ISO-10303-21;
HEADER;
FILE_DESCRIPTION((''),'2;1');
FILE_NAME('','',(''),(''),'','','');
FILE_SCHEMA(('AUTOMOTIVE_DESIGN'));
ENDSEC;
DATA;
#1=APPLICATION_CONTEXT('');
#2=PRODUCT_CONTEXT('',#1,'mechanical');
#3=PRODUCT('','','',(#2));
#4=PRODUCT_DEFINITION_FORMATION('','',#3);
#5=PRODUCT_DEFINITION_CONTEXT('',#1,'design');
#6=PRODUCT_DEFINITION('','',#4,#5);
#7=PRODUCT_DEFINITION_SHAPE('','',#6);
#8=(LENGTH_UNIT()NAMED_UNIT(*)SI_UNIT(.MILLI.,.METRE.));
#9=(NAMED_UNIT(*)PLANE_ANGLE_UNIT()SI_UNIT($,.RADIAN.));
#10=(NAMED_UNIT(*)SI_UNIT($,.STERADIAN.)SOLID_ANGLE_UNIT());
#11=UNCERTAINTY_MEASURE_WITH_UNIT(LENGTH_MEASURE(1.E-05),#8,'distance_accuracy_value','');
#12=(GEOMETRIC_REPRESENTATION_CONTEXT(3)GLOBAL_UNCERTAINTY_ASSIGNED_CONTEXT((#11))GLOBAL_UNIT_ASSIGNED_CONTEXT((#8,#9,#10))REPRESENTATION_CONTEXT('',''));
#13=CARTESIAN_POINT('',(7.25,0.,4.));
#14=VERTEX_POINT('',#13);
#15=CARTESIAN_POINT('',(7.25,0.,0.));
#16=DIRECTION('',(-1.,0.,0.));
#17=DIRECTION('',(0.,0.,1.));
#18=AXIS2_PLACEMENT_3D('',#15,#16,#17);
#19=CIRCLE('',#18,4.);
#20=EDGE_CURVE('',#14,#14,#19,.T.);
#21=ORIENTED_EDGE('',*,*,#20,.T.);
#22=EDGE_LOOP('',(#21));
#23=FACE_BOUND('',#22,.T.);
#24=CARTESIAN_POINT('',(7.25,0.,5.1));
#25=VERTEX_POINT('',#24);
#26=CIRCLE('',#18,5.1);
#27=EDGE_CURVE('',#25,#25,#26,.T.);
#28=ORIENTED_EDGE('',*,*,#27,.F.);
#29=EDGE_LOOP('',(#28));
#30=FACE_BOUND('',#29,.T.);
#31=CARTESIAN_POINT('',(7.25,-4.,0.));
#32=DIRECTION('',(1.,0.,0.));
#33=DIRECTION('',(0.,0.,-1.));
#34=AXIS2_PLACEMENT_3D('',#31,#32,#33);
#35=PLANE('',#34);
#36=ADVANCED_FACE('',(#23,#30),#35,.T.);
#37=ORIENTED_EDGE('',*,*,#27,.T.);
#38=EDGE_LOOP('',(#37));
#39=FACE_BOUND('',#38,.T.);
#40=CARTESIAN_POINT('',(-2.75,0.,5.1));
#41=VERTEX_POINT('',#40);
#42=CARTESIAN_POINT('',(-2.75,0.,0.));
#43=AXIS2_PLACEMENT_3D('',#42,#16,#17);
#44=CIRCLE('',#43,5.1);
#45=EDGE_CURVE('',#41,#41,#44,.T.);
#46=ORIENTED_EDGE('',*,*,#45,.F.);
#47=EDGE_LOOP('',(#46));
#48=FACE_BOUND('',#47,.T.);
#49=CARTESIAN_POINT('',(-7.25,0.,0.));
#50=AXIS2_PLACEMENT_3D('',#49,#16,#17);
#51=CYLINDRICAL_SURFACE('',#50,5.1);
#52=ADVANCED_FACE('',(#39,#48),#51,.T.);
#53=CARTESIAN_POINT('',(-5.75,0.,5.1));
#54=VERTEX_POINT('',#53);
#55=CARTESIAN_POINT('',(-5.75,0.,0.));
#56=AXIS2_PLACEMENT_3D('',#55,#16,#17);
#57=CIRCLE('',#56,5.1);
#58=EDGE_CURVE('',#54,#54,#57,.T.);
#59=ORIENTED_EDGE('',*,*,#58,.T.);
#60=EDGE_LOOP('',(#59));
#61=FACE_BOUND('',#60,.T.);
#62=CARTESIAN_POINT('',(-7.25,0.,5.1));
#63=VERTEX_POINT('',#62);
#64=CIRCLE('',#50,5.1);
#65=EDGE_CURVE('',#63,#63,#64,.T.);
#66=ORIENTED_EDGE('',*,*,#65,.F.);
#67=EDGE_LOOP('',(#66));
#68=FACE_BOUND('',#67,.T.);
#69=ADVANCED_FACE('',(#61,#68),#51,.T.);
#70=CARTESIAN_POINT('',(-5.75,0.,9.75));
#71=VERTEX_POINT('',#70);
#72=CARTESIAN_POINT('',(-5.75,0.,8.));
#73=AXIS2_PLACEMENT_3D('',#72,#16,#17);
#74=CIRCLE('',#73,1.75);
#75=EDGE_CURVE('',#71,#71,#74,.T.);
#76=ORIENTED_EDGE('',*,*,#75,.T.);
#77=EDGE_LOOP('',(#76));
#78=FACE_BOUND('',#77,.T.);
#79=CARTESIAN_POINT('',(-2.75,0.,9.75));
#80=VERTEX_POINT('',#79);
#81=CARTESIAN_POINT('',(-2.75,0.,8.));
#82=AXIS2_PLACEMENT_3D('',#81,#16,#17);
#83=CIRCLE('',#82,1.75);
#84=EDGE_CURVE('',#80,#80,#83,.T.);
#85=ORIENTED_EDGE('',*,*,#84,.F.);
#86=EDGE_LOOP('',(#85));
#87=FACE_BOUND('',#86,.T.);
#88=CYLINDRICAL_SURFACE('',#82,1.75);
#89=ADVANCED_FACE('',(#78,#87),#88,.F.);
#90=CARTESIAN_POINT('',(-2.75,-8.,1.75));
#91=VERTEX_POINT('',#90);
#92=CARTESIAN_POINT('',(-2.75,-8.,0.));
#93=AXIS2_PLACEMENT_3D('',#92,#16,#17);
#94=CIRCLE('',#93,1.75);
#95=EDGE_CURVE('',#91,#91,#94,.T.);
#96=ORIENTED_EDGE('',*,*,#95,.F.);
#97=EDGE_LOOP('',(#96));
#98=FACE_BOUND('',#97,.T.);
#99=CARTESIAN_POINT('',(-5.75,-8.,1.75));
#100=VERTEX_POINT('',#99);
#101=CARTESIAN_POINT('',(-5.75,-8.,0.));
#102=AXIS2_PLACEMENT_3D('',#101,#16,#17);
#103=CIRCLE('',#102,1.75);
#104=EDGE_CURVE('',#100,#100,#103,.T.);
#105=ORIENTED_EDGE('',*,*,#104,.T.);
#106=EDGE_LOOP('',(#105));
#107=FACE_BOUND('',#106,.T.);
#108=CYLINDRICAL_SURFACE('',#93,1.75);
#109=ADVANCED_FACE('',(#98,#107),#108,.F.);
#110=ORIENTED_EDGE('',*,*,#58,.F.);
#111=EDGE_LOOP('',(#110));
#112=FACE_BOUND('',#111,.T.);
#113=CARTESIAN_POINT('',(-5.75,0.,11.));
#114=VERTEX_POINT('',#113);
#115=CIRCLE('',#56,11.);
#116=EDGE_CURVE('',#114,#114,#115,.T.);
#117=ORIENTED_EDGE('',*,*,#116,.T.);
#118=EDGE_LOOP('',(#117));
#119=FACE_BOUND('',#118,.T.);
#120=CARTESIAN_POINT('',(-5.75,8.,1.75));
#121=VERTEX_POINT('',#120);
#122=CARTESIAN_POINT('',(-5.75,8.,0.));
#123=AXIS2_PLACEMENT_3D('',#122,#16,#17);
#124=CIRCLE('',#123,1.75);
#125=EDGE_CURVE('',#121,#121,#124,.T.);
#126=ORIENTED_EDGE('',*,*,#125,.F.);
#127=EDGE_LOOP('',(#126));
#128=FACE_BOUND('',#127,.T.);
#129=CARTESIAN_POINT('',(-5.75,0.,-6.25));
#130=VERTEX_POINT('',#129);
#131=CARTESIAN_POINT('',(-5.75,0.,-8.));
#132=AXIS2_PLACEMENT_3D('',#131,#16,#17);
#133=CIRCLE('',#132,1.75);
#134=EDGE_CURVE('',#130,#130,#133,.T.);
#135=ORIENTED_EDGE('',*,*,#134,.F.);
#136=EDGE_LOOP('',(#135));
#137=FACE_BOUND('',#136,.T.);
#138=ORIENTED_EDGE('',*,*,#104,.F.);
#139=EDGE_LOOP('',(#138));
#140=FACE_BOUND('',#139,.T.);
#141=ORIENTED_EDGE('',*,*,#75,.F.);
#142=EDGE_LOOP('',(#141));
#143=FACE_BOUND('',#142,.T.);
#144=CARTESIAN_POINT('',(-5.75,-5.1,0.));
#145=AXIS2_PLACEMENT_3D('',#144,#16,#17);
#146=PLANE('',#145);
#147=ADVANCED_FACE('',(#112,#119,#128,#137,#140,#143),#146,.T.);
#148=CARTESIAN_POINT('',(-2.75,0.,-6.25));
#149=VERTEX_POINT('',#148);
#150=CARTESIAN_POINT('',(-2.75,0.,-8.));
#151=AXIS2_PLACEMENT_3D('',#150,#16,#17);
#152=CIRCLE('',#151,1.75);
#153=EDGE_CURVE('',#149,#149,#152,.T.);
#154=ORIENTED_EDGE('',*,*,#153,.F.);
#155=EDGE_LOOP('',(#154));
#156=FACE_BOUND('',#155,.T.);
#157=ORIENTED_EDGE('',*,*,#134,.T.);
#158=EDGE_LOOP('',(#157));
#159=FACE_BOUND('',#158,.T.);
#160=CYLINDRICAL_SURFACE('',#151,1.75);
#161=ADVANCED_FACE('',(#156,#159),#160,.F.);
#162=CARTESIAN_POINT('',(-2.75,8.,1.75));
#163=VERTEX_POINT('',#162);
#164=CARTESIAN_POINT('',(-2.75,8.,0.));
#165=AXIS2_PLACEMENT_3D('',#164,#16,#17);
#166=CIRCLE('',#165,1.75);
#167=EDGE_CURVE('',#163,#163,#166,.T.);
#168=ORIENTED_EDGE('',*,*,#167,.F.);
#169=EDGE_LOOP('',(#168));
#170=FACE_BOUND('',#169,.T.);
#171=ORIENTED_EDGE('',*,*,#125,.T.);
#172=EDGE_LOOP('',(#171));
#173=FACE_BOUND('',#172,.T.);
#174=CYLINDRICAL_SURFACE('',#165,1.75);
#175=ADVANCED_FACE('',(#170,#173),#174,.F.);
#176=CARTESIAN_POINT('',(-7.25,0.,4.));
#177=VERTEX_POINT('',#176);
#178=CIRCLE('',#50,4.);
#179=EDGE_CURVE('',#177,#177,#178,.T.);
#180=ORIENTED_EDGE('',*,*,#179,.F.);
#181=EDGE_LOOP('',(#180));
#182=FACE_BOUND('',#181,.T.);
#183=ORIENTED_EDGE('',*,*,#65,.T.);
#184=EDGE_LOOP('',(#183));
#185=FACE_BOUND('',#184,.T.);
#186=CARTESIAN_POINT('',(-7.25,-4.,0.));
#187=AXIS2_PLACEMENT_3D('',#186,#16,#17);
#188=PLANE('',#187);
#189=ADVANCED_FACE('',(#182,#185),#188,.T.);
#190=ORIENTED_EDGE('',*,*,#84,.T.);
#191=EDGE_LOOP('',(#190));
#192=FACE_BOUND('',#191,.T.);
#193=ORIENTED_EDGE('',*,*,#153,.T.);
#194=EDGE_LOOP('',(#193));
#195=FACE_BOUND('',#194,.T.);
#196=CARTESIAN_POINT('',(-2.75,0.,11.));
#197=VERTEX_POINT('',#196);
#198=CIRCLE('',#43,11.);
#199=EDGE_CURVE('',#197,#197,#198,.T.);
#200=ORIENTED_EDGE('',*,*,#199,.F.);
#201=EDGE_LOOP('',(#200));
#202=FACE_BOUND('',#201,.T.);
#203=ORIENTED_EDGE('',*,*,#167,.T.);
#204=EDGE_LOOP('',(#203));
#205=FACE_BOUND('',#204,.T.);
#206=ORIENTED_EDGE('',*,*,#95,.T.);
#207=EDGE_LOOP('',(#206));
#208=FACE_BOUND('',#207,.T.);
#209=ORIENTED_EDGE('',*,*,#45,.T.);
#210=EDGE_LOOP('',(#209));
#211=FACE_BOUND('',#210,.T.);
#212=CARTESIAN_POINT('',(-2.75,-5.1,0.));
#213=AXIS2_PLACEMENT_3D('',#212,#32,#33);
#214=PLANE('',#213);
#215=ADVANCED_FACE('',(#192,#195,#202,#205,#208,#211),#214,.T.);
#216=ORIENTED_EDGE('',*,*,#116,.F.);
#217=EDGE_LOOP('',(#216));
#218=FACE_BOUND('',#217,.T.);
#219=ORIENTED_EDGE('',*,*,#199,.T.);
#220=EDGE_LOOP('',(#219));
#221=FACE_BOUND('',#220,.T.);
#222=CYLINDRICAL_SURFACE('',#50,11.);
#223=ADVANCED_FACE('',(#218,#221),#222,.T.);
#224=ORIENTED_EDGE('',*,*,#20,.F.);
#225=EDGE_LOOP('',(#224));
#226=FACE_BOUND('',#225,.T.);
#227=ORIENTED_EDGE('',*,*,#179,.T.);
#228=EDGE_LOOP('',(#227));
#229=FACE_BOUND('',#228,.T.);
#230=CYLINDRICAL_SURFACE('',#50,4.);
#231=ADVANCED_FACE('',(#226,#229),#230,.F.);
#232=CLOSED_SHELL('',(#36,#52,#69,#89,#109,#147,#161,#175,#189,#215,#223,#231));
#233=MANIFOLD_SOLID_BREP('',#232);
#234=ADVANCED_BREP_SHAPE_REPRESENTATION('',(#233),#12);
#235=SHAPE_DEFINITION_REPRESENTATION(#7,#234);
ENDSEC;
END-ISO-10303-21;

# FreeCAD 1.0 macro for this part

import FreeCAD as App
import Part
import Sketcher
Q = App.Units.Quantity

doc = App.newDocument("Part")
body = doc.addObject("PartDesign::Body", "Body")

# Sketch on XY plane
sketch1 = body.newObject("Sketcher::SketchObject", "Sketch")
sketch1.AttachmentSupport = (doc.getObject("XY_Plane"), [""])
sketch1.MapMode = "FlatFace"
sketch1.addGeometry(Part.LineSegment(App.Vector(-5.75, -5.1, 0), App.Vector(-5.75, -11, 0)), False)
sketch1.addGeometry(Part.LineSegment(App.Vector(-5.75, -11, 0), App.Vector(-2.75, -11, 0)), False)
sketch1.addGeometry(Part.LineSegment(App.Vector(-2.75, -11, 0), App.Vector(-2.75, -5.1, 0)), False)
sketch1.addGeometry(Part.LineSegment(App.Vector(-2.75, -5.1, 0), App.Vector(7.25, -5.1, 0)), False)
sketch1.addGeometry(Part.LineSegment(App.Vector(7.25, -5.1, 0), App.Vector(7.25, -4, 0)), False)
sketch1.addGeometry(Part.LineSegment(App.Vector(7.25, -4, 0), App.Vector(-7.25, -4, 0)), False)
sketch1.addGeometry(Part.LineSegment(App.Vector(-7.25, -4, 0), App.Vector(-7.25, -5.1, 0)), False)
sketch1.addGeometry(Part.LineSegment(App.Vector(-7.25, -5.1, 0), App.Vector(-5.75, -5.1, 0)), False)
sketch1.addConstraint(Sketcher.Constraint("Coincident", 0, 2, 1, 1))
sketch1.addConstraint(Sketcher.Constraint("Coincident", 1, 2, 2, 1))
sketch1.addConstraint(Sketcher.Constraint("Coincident", 2, 2, 3, 1))
sketch1.addConstraint(Sketcher.Constraint("Coincident", 3, 2, 4, 1))
sketch1.addConstraint(Sketcher.Constraint("Coincident", 4, 2, 5, 1))
sketch1.addConstraint(Sketcher.Constraint("Coincident", 5, 2, 6, 1))
sketch1.addConstraint(Sketcher.Constraint("Coincident", 6, 2, 7, 1))
sketch1.addConstraint(Sketcher.Constraint("Coincident", 7, 2, 0, 1))
sketch1.addConstraint(Sketcher.Constraint("Vertical", 0))
sketch1.addConstraint(Sketcher.Constraint("Horizontal", 1))
sketch1.addConstraint(Sketcher.Constraint("Vertical", 2))
sketch1.addConstraint(Sketcher.Constraint("Horizontal", 3))
sketch1.addConstraint(Sketcher.Constraint("Vertical", 4))
sketch1.addConstraint(Sketcher.Constraint("Horizontal", 5))
sketch1.addConstraint(Sketcher.Constraint("Vertical", 6))
sketch1.addConstraint(Sketcher.Constraint("Horizontal", 7))
sketch1.addConstraint(Sketcher.Constraint("Symmetric", 3, 2, 6, 2, -2))
sketch1.addConstraint(Sketcher.Constraint("DistanceX", 1, 1, 1, 2, Q("3 mm")))
sketch1.addConstraint(Sketcher.Constraint("DistanceX", 3, 1, 3, 2, Q("10 mm")))
sketch1.addConstraint(Sketcher.Constraint("DistanceX", 5, 2, 5, 1, Q("14.5 mm")))
sketch1.addConstraint(Sketcher.Constraint("DistanceY", 0, 2, 0, 1, Q("5.9 mm")))
sketch1.addConstraint(Sketcher.Constraint("DistanceY", 4, 1, 4, 2, Q("1.1 mm")))
sketch1.addConstraint(Sketcher.Constraint("DistanceY", 0, 2, -1, 1, Q("11 mm")))
revolution = body.newObject("PartDesign::Revolution", "Revolution")
revolution.Profile = sketch1
revolution.ReferenceAxis = (sketch1, ["H_Axis"])
revolution.Angle = 360

# Sketch on YZ plane
sketch2 = body.newObject("Sketcher::SketchObject", "Sketch001")
sketch2.AttachmentSupport = (doc.getObject("YZ_Plane"), [""])
sketch2.MapMode = "FlatFace"
sketch2.AttachmentOffset = App.Placement(App.Vector(0, 0, -5.75), App.Rotation())
sketch2.addGeometry(Part.Circle(App.Vector(8, 0, 0), App.Vector(0, 0, 1), 1.75), False)
sketch2.addGeometry(Part.Circle(App.Vector(-8, 0, 0), App.Vector(0, 0, 1), 1.75), False)
sketch2.addGeometry(Part.Circle(App.Vector(0, 8, 0), App.Vector(0, 0, 1), 1.75), False)
sketch2.addGeometry(Part.Circle(App.Vector(0, -8, 0), App.Vector(0, 0, 1), 1.75), False)
sketch2.addGeometry(Part.LineSegment(App.Vector(2346.745629, 5205.178443, 0), App.Vector(2340.845629, 5205.178443, 0)), False)
sketch2.addGeometry(Part.LineSegment(App.Vector(2340.845629, 5205.178443, 0), App.Vector(2340.845629, 5208.178443, 0)), False)
sketch2.addGeometry(Part.LineSegment(App.Vector(2340.845629, 5208.178443, 0), App.Vector(2346.745629, 5208.178443, 0)), False)
sketch2.addGeometry(Part.LineSegment(App.Vector(2346.745629, 5208.178443, 0), App.Vector(2346.745629, 5218.178443, 0)), False)
sketch2.addGeometry(Part.LineSegment(App.Vector(2346.745629, 5218.178443, 0), App.Vector(2347.845629, 5218.178443, 0)), False)
sketch2.addGeometry(Part.LineSegment(App.Vector(2347.845629, 5218.178443, 0), App.Vector(2347.845629, 5203.678443, 0)), False)
sketch2.addGeometry(Part.LineSegment(App.Vector(2347.845629, 5203.678443, 0), App.Vector(2346.745629, 5203.678443, 0)), False)
sketch2.addGeometry(Part.LineSegment(App.Vector(2346.745629, 5203.678443, 0), App.Vector(2346.745629, 5205.178443, 0)), False)
sketch2.addConstraint(Sketcher.Constraint("Coincident", 4, 2, 5, 1))
sketch2.addConstraint(Sketcher.Constraint("Coincident", 5, 2, 6, 1))
sketch2.addConstraint(Sketcher.Constraint("Coincident", 6, 2, 7, 1))
sketch2.addConstraint(Sketcher.Constraint("Coincident", 7, 2, 8, 1))
sketch2.addConstraint(Sketcher.Constraint("Coincident", 8, 2, 9, 1))
sketch2.addConstraint(Sketcher.Constraint("Coincident", 9, 2, 10, 1))
sketch2.addConstraint(Sketcher.Constraint("Coincident", 10, 2, 11, 1))
sketch2.addConstraint(Sketcher.Constraint("Coincident", 11, 2, 4, 1))
sketch2.addConstraint(Sketcher.Constraint("Horizontal", 4))
sketch2.addConstraint(Sketcher.Constraint("Vertical", 5))
sketch2.addConstraint(Sketcher.Constraint("Horizontal", 6))
sketch2.addConstraint(Sketcher.Constraint("Vertical", 7))
sketch2.addConstraint(Sketcher.Constraint("Horizontal", 8))
sketch2.addConstraint(Sketcher.Constraint("Vertical", 9))
sketch2.addConstraint(Sketcher.Constraint("Horizontal", 10))
sketch2.addConstraint(Sketcher.Constraint("Vertical", 11))
sketch2.addConstraint(Sketcher.Constraint("Equal", 0, 1))
sketch2.addConstraint(Sketcher.Constraint("Equal", 1, 2))
sketch2.addConstraint(Sketcher.Constraint("Equal", 2, 3))
sketch2.addConstraint(Sketcher.Constraint("Symmetric", 0, 3, 1, 3, -1, 1))
sketch2.addConstraint(Sketcher.Constraint("Symmetric", 2, 3, 3, 3, -1, 1))
sketch2.addConstraint(Sketcher.Constraint("PointOnObject", 0, 3, -1))
sketch2.addConstraint(Sketcher.Constraint("PointOnObject", 2, 3, -2))
sketch2.addConstraint(Sketcher.Constraint("Vertical", 7, 2, 10, 2))
sketch2.addConstraint(Sketcher.Constraint("Diameter", 0, Q("3.5 mm")))
sketch2.addConstraint(Sketcher.Constraint("DistanceY", 5, 1, 5, 2, Q("3 mm")))
sketch2.addConstraint(Sketcher.Constraint("DistanceY", 7, 1, 7, 2, Q("10 mm")))
sketch2.addConstraint(Sketcher.Constraint("DistanceX", 4, 2, 4, 1, Q("5.9 mm")))
sketch2.addConstraint(Sketcher.Constraint("DistanceX", 8, 1, 8, 2, Q("1.1 mm")))
sketch2.addConstraint(Sketcher.Constraint("DistanceY", 9, 2, 9, 1, Q("14.5 mm")))
sketch2.addConstraint(Sketcher.Constraint("DistanceX", -1, 1, 0, 3, Q("8 mm")))
sketch2.addConstraint(Sketcher.Constraint("DistanceY", -1, 1, 2, 3, Q("8 mm")))
sketch2.addConstraint(Sketcher.Constraint("DistanceX", -1, 1, 4, 2, Q("2340.845629 mm")))
sketch2.addConstraint(Sketcher.Constraint("DistanceY", -1, 1, 4, 2, Q("5205.178443 mm")))
pocket1 = body.newObject("PartDesign::Pocket", "Pocket")
pocket1.Profile = sketch2
pocket1.Length = 3
pocket1.Reversed = True

doc.recompute()
